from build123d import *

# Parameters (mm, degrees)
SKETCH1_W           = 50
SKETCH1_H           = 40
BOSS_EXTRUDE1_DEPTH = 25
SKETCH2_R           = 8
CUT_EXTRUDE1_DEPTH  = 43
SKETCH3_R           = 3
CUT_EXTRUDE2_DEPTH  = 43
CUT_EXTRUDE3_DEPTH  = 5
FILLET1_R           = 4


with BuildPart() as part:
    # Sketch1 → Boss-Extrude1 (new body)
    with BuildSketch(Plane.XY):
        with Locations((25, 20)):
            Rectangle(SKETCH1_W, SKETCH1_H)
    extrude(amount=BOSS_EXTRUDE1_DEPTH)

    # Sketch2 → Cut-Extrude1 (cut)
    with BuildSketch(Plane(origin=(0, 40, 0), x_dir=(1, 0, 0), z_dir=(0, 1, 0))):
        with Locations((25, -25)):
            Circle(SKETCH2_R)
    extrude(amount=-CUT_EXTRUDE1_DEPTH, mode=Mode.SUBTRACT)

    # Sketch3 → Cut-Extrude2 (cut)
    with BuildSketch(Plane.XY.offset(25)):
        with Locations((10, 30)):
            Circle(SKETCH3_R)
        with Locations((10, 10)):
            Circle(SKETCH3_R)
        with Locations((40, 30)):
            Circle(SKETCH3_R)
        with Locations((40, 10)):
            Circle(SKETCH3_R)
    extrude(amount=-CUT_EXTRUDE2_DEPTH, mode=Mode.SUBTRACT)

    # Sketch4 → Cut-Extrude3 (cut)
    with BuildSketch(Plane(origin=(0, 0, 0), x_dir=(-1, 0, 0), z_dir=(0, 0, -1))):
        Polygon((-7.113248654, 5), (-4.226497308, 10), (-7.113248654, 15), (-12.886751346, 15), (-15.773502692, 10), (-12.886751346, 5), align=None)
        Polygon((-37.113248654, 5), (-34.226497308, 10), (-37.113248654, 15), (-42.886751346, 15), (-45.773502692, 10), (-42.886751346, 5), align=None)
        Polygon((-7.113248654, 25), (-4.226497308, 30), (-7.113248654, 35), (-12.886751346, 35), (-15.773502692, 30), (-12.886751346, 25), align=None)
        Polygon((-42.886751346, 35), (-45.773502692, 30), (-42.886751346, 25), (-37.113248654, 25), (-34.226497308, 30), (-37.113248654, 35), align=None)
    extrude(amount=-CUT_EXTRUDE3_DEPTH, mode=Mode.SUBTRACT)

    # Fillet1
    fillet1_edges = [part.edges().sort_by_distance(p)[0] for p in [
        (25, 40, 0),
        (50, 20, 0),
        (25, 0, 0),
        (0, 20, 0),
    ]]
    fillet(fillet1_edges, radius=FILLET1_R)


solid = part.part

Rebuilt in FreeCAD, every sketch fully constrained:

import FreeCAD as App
import Part
import Sketcher

V = App.Vector
Q = App.Units.Quantity


def edges_at(feature, points):
    """Names of the edges that pass closest to the given points."""
    edges = feature.Shape.Edges
    near = lambda p: min(range(len(edges)), key=lambda i: edges[i].distToShape(Part.Vertex(*p))[0])
    return sorted({f"Edge{near(p) + 1}" for p in points})

doc = App.newDocument("Part")
body = doc.addObject("PartDesign::Body", "Body")

# Sketch on XY plane
sketch1 = body.newObject("Sketcher::SketchObject", "Sketch")
sketch1.AttachmentSupport = (doc.getObject("XY_Plane"), [""])
sketch1.MapMode = "FlatFace"
sketch1.addGeometry(Part.LineSegment(V(0, 40, 0), V(0, 0, 0)), False)
sketch1.addGeometry(Part.LineSegment(V(0, 0, 0), V(50, 0, 0)), False)
sketch1.addGeometry(Part.LineSegment(V(50, 0, 0), V(50, 40, 0)), False)
sketch1.addGeometry(Part.LineSegment(V(50, 40, 0), V(0, 40, 0)), False)
sketch1.addConstraint(Sketcher.Constraint("Coincident", 0, 2, 1, 1))
sketch1.addConstraint(Sketcher.Constraint("Coincident", 1, 2, 2, 1))
sketch1.addConstraint(Sketcher.Constraint("Coincident", 2, 2, 3, 1))
sketch1.addConstraint(Sketcher.Constraint("Coincident", 3, 2, 0, 1))
sketch1.addConstraint(Sketcher.Constraint("Vertical", 0))
sketch1.addConstraint(Sketcher.Constraint("Horizontal", 1))
sketch1.addConstraint(Sketcher.Constraint("Vertical", 2))
sketch1.addConstraint(Sketcher.Constraint("Horizontal", 3))
sketch1.addConstraint(Sketcher.Constraint("Coincident", 0, 2, -1, 1))
sketch1.addConstraint(Sketcher.Constraint("DistanceX", 1, 1, 1, 2, Q("50 mm")))
sketch1.addConstraint(Sketcher.Constraint("DistanceY", 0, 2, 0, 1, Q("40 mm")))
pad1 = body.newObject("PartDesign::Pad", "Pad")
pad1.Profile = sketch1
pad1.Length = 25

# Sketch on XZ plane
sketch2 = body.newObject("Sketcher::SketchObject", "Sketch001")
sketch2.AttachmentSupport = (doc.getObject("XZ_Plane"), [""])
sketch2.MapMode = "FlatFace"
sketch2.AttachmentOffset = App.Placement(V(0, 0, -40), App.Rotation())
sketch2.addGeometry(Part.Circle(V(25, 25, 0), V(0, 0, 1), 8), False)
sketch2.addConstraint(Sketcher.Constraint("Diameter", 0, Q("16 mm")))
sketch2.addConstraint(Sketcher.Constraint("DistanceX", -1, 1, 0, 3, Q("25 mm")))
sketch2.addConstraint(Sketcher.Constraint("DistanceY", -1, 1, 0, 3, Q("25 mm")))
pocket1 = body.newObject("PartDesign::Pocket", "Pocket")
pocket1.Profile = sketch2
pocket1.Length = 43
pocket1.Reversed = True

# Sketch on XY plane
sketch3 = body.newObject("Sketcher::SketchObject", "Sketch002")
sketch3.AttachmentSupport = (doc.getObject("XY_Plane"), [""])
sketch3.MapMode = "FlatFace"
sketch3.AttachmentOffset = App.Placement(V(0, 0, 25), App.Rotation())
sketch3.addGeometry(Part.Circle(V(10, 30, 0), V(0, 0, 1), 3), False)
sketch3.addGeometry(Part.Circle(V(10, 10, 0), V(0, 0, 1), 3), False)
sketch3.addGeometry(Part.Circle(V(40, 30, 0), V(0, 0, 1), 3), False)
sketch3.addGeometry(Part.Circle(V(40, 10, 0), V(0, 0, 1), 3), False)
sketch3.addConstraint(Sketcher.Constraint("Equal", 0, 1))
sketch3.addConstraint(Sketcher.Constraint("Equal", 1, 2))
sketch3.addConstraint(Sketcher.Constraint("Equal", 2, 3))
sketch3.addConstraint(Sketcher.Constraint("Horizontal", 0, 3, 2, 3))
sketch3.addConstraint(Sketcher.Constraint("Horizontal", 1, 3, 3, 3))
sketch3.addConstraint(Sketcher.Constraint("Vertical", 0, 3, 1, 3))
sketch3.addConstraint(Sketcher.Constraint("Vertical", 2, 3, 3, 3))
sketch3.addConstraint(Sketcher.Constraint("Diameter", 0, Q("6 mm")))
sketch3.addConstraint(Sketcher.Constraint("DistanceX", -1, 1, 0, 3, Q("10 mm")))
sketch3.addConstraint(Sketcher.Constraint("DistanceY", -1, 1, 0, 3, Q("30 mm")))
sketch3.addConstraint(Sketcher.Constraint("DistanceY", -1, 1, 1, 3, Q("10 mm")))
sketch3.addConstraint(Sketcher.Constraint("DistanceX", -1, 1, 2, 3, Q("40 mm")))
pocket2 = body.newObject("PartDesign::Pocket", "Pocket001")
pocket2.Profile = sketch3
pocket2.Length = 43

# Sketch on XY plane
sketch4 = body.newObject("Sketcher::SketchObject", "Sketch003")
sketch4.AttachmentSupport = (doc.getObject("XY_Plane"), [""])
sketch4.MapMode = "FlatFace"
sketch4.addGeometry(Part.LineSegment(V(7, 5, 0), V(4, 10, 0)), False)
sketch4.addGeometry(Part.LineSegment(V(4, 10, 0), V(7, 15, 0)), False)
sketch4.addGeometry(Part.LineSegment(V(7, 15, 0), V(13, 15, 0)), False)
sketch4.addGeometry(Part.LineSegment(V(13, 15, 0), V(16, 10, 0)), False)
sketch4.addGeometry(Part.LineSegment(V(16, 10, 0), V(13, 5, 0)), False)
sketch4.addGeometry(Part.LineSegment(V(13, 5, 0), V(7, 5, 0)), False)
sketch4.addGeometry(Part.LineSegment(V(37, 5, 0), V(34, 10, 0)), False)
sketch4.addGeometry(Part.LineSegment(V(34, 10, 0), V(37, 15, 0)), False)
sketch4.addGeometry(Part.LineSegment(V(37, 15, 0), V(43, 15, 0)), False)
sketch4.addGeometry(Part.LineSegment(V(43, 15, 0), V(46, 10, 0)), False)
sketch4.addGeometry(Part.LineSegment(V(46, 10, 0), V(43, 5, 0)), False)
sketch4.addGeometry(Part.LineSegment(V(43, 5, 0), V(37, 5, 0)), False)
sketch4.addGeometry(Part.LineSegment(V(7, 25, 0), V(4, 30, 0)), False)
sketch4.addGeometry(Part.LineSegment(V(4, 30, 0), V(7, 35, 0)), False)
sketch4.addGeometry(Part.LineSegment(V(7, 35, 0), V(13, 35, 0)), False)
sketch4.addGeometry(Part.LineSegment(V(13, 35, 0), V(16, 30, 0)), False)
sketch4.addGeometry(Part.LineSegment(V(16, 30, 0), V(13, 25, 0)), False)
sketch4.addGeometry(Part.LineSegment(V(13, 25, 0), V(7, 25, 0)), False)
sketch4.addGeometry(Part.LineSegment(V(43, 35, 0), V(46, 30, 0)), False)
sketch4.addGeometry(Part.LineSegment(V(46, 30, 0), V(43, 25, 0)), False)
sketch4.addGeometry(Part.LineSegment(V(43, 25, 0), V(37, 25, 0)), False)
sketch4.addGeometry(Part.LineSegment(V(37, 25, 0), V(34, 30, 0)), False)
sketch4.addGeometry(Part.LineSegment(V(34, 30, 0), V(37, 35, 0)), False)
sketch4.addGeometry(Part.LineSegment(V(37, 35, 0), V(43, 35, 0)), False)
sketch4.addConstraint(Sketcher.Constraint("Coincident", 0, 2, 1, 1))
sketch4.addConstraint(Sketcher.Constraint("Coincident", 1, 2, 2, 1))
sketch4.addConstraint(Sketcher.Constraint("Coincident", 2, 2, 3, 1))
sketch4.addConstraint(Sketcher.Constraint("Coincident", 3, 2, 4, 1))
sketch4.addConstraint(Sketcher.Constraint("Coincident", 4, 2, 5, 1))
sketch4.addConstraint(Sketcher.Constraint("Coincident", 5, 2, 0, 1))
sketch4.addConstraint(Sketcher.Constraint("Coincident", 6, 2, 7, 1))
sketch4.addConstraint(Sketcher.Constraint("Coincident", 7, 2, 8, 1))
sketch4.addConstraint(Sketcher.Constraint("Coincident", 8, 2, 9, 1))
sketch4.addConstraint(Sketcher.Constraint("Coincident", 9, 2, 10, 1))
sketch4.addConstraint(Sketcher.Constraint("Coincident", 10, 2, 11, 1))
sketch4.addConstraint(Sketcher.Constraint("Coincident", 11, 2, 6, 1))
sketch4.addConstraint(Sketcher.Constraint("Coincident", 12, 2, 13, 1))
sketch4.addConstraint(Sketcher.Constraint("Coincident", 13, 2, 14, 1))
sketch4.addConstraint(Sketcher.Constraint("Coincident", 14, 2, 15, 1))
sketch4.addConstraint(Sketcher.Constraint("Coincident", 15, 2, 16, 1))
sketch4.addConstraint(Sketcher.Constraint("Coincident", 16, 2, 17, 1))
sketch4.addConstraint(Sketcher.Constraint("Coincident", 17, 2, 12, 1))
sketch4.addConstraint(Sketcher.Constraint("Coincident", 18, 2, 19, 1))
sketch4.addConstraint(Sketcher.Constraint("Coincident", 19, 2, 20, 1))
sketch4.addConstraint(Sketcher.Constraint("Coincident", 20, 2, 21, 1))
sketch4.addConstraint(Sketcher.Constraint("Coincident", 21, 2, 22, 1))
sketch4.addConstraint(Sketcher.Constraint("Coincident", 22, 2, 23, 1))
sketch4.addConstraint(Sketcher.Constraint("Coincident", 23, 2, 18, 1))
sketch4.addConstraint(Sketcher.Constraint("Horizontal", 2))
sketch4.addConstraint(Sketcher.Constraint("Horizontal", 5))
sketch4.addConstraint(Sketcher.Constraint("Horizontal", 8))
sketch4.addConstraint(Sketcher.Constraint("Horizontal", 11))
sketch4.addConstraint(Sketcher.Constraint("Horizontal", 14))
sketch4.addConstraint(Sketcher.Constraint("Horizontal", 17))
sketch4.addConstraint(Sketcher.Constraint("Horizontal", 20))
sketch4.addConstraint(Sketcher.Constraint("Horizontal", 23))
sketch4.addConstraint(Sketcher.Constraint("Parallel", 0, 3))
sketch4.addConstraint(Sketcher.Constraint("Parallel", 1, 4))
sketch4.addConstraint(Sketcher.Constraint("Parallel", 3, 6))
sketch4.addConstraint(Sketcher.Constraint("Parallel", 4, 7))
sketch4.addConstraint(Sketcher.Constraint("Parallel", 6, 9))
sketch4.addConstraint(Sketcher.Constraint("Parallel", 7, 10))
sketch4.addConstraint(Sketcher.Constraint("Parallel", 9, 12))
sketch4.addConstraint(Sketcher.Constraint("Parallel", 10, 13))
sketch4.addConstraint(Sketcher.Constraint("Parallel", 12, 15))
sketch4.addConstraint(Sketcher.Constraint("Parallel", 13, 16))
sketch4.addConstraint(Sketcher.Constraint("Parallel", 15, 18))
sketch4.addConstraint(Sketcher.Constraint("Parallel", 16, 19))
sketch4.addConstraint(Sketcher.Constraint("Parallel", 18, 21))
sketch4.addConstraint(Sketcher.Constraint("Parallel", 19, 22))
sketch4.addConstraint(Sketcher.Constraint("Horizontal", 0, 2, 3, 2))
sketch4.addConstraint(Sketcher.Constraint("Horizontal", 3, 2, 6, 2))
sketch4.addConstraint(Sketcher.Constraint("Horizontal", 2, 2, 7, 2))
sketch4.addConstraint(Sketcher.Constraint("Horizontal", 6, 2, 9, 2))
sketch4.addConstraint(Sketcher.Constraint("Horizontal", 5, 2, 10, 2))
sketch4.addConstraint(Sketcher.Constraint("Horizontal", 12, 2, 15, 2))
sketch4.addConstraint(Sketcher.Constraint("Horizontal", 15, 2, 18, 2))
sketch4.addConstraint(Sketcher.Constraint("Horizontal", 17, 2, 19, 2))
sketch4.addConstraint(Sketcher.Constraint("Horizontal", 18, 2, 21, 2))
sketch4.addConstraint(Sketcher.Constraint("Horizontal", 14, 2, 22, 2))
sketch4.addConstraint(Sketcher.Constraint("Vertical", 2, 2, 4, 2))
sketch4.addConstraint(Sketcher.Constraint("Vertical", 1, 2, 5, 2))
sketch4.addConstraint(Sketcher.Constraint("Vertical", 0, 2, 12, 2))
sketch4.addConstraint(Sketcher.Constraint("Vertical", 5, 2, 13, 2))
sketch4.addConstraint(Sketcher.Constraint("Vertical", 4, 2, 14, 2))
sketch4.addConstraint(Sketcher.Constraint("Vertical", 14, 2, 16, 2))
sketch4.addConstraint(Sketcher.Constraint("Vertical", 9, 2, 18, 2))
sketch4.addConstraint(Sketcher.Constraint("Vertical", 11, 2, 20, 2))
sketch4.addConstraint(Sketcher.Constraint("Equal", 5, 8))
sketch4.addConstraint(Sketcher.Constraint("Angle", 0, Q("120 deg")))
sketch4.addConstraint(Sketcher.Constraint("DistanceY", -1, 1, 0, 2, Q("10 mm")))
sketch4.addConstraint(Sketcher.Constraint("DistanceY", -1, 1, 1, 2, Q("15 mm")))
sketch4.addConstraint(Sketcher.Constraint("DistanceY", -1, 1, 12, 2, Q("30 mm")))
sketch4.addConstraint(Sketcher.Constraint("DistanceX", 1, 2, 7, 2, Q("30 mm")))
sketch4.addConstraint(Sketcher.Constraint("DistanceX", 2, 1, 2, 2, Q("5.773503 mm")))
sketch4.addConstraint(Sketcher.Constraint("DistanceX", -1, 1, 1, 2, Q("7.113249 mm")))
pocket3 = body.newObject("PartDesign::Pocket", "Pocket002")
pocket3.Profile = sketch4
pocket3.Length = 5
pocket3.Reversed = True
doc.recompute()

fillet = body.newObject("PartDesign::Fillet", "Fillet")
fillet.Base = (pocket3, edges_at(pocket3, [
    (25, 40, 0),
    (50, 20, 0),
    (25, 0, 0),
    (0, 20, 0),
]))
fillet.Radius = 4

doc.recompute()
